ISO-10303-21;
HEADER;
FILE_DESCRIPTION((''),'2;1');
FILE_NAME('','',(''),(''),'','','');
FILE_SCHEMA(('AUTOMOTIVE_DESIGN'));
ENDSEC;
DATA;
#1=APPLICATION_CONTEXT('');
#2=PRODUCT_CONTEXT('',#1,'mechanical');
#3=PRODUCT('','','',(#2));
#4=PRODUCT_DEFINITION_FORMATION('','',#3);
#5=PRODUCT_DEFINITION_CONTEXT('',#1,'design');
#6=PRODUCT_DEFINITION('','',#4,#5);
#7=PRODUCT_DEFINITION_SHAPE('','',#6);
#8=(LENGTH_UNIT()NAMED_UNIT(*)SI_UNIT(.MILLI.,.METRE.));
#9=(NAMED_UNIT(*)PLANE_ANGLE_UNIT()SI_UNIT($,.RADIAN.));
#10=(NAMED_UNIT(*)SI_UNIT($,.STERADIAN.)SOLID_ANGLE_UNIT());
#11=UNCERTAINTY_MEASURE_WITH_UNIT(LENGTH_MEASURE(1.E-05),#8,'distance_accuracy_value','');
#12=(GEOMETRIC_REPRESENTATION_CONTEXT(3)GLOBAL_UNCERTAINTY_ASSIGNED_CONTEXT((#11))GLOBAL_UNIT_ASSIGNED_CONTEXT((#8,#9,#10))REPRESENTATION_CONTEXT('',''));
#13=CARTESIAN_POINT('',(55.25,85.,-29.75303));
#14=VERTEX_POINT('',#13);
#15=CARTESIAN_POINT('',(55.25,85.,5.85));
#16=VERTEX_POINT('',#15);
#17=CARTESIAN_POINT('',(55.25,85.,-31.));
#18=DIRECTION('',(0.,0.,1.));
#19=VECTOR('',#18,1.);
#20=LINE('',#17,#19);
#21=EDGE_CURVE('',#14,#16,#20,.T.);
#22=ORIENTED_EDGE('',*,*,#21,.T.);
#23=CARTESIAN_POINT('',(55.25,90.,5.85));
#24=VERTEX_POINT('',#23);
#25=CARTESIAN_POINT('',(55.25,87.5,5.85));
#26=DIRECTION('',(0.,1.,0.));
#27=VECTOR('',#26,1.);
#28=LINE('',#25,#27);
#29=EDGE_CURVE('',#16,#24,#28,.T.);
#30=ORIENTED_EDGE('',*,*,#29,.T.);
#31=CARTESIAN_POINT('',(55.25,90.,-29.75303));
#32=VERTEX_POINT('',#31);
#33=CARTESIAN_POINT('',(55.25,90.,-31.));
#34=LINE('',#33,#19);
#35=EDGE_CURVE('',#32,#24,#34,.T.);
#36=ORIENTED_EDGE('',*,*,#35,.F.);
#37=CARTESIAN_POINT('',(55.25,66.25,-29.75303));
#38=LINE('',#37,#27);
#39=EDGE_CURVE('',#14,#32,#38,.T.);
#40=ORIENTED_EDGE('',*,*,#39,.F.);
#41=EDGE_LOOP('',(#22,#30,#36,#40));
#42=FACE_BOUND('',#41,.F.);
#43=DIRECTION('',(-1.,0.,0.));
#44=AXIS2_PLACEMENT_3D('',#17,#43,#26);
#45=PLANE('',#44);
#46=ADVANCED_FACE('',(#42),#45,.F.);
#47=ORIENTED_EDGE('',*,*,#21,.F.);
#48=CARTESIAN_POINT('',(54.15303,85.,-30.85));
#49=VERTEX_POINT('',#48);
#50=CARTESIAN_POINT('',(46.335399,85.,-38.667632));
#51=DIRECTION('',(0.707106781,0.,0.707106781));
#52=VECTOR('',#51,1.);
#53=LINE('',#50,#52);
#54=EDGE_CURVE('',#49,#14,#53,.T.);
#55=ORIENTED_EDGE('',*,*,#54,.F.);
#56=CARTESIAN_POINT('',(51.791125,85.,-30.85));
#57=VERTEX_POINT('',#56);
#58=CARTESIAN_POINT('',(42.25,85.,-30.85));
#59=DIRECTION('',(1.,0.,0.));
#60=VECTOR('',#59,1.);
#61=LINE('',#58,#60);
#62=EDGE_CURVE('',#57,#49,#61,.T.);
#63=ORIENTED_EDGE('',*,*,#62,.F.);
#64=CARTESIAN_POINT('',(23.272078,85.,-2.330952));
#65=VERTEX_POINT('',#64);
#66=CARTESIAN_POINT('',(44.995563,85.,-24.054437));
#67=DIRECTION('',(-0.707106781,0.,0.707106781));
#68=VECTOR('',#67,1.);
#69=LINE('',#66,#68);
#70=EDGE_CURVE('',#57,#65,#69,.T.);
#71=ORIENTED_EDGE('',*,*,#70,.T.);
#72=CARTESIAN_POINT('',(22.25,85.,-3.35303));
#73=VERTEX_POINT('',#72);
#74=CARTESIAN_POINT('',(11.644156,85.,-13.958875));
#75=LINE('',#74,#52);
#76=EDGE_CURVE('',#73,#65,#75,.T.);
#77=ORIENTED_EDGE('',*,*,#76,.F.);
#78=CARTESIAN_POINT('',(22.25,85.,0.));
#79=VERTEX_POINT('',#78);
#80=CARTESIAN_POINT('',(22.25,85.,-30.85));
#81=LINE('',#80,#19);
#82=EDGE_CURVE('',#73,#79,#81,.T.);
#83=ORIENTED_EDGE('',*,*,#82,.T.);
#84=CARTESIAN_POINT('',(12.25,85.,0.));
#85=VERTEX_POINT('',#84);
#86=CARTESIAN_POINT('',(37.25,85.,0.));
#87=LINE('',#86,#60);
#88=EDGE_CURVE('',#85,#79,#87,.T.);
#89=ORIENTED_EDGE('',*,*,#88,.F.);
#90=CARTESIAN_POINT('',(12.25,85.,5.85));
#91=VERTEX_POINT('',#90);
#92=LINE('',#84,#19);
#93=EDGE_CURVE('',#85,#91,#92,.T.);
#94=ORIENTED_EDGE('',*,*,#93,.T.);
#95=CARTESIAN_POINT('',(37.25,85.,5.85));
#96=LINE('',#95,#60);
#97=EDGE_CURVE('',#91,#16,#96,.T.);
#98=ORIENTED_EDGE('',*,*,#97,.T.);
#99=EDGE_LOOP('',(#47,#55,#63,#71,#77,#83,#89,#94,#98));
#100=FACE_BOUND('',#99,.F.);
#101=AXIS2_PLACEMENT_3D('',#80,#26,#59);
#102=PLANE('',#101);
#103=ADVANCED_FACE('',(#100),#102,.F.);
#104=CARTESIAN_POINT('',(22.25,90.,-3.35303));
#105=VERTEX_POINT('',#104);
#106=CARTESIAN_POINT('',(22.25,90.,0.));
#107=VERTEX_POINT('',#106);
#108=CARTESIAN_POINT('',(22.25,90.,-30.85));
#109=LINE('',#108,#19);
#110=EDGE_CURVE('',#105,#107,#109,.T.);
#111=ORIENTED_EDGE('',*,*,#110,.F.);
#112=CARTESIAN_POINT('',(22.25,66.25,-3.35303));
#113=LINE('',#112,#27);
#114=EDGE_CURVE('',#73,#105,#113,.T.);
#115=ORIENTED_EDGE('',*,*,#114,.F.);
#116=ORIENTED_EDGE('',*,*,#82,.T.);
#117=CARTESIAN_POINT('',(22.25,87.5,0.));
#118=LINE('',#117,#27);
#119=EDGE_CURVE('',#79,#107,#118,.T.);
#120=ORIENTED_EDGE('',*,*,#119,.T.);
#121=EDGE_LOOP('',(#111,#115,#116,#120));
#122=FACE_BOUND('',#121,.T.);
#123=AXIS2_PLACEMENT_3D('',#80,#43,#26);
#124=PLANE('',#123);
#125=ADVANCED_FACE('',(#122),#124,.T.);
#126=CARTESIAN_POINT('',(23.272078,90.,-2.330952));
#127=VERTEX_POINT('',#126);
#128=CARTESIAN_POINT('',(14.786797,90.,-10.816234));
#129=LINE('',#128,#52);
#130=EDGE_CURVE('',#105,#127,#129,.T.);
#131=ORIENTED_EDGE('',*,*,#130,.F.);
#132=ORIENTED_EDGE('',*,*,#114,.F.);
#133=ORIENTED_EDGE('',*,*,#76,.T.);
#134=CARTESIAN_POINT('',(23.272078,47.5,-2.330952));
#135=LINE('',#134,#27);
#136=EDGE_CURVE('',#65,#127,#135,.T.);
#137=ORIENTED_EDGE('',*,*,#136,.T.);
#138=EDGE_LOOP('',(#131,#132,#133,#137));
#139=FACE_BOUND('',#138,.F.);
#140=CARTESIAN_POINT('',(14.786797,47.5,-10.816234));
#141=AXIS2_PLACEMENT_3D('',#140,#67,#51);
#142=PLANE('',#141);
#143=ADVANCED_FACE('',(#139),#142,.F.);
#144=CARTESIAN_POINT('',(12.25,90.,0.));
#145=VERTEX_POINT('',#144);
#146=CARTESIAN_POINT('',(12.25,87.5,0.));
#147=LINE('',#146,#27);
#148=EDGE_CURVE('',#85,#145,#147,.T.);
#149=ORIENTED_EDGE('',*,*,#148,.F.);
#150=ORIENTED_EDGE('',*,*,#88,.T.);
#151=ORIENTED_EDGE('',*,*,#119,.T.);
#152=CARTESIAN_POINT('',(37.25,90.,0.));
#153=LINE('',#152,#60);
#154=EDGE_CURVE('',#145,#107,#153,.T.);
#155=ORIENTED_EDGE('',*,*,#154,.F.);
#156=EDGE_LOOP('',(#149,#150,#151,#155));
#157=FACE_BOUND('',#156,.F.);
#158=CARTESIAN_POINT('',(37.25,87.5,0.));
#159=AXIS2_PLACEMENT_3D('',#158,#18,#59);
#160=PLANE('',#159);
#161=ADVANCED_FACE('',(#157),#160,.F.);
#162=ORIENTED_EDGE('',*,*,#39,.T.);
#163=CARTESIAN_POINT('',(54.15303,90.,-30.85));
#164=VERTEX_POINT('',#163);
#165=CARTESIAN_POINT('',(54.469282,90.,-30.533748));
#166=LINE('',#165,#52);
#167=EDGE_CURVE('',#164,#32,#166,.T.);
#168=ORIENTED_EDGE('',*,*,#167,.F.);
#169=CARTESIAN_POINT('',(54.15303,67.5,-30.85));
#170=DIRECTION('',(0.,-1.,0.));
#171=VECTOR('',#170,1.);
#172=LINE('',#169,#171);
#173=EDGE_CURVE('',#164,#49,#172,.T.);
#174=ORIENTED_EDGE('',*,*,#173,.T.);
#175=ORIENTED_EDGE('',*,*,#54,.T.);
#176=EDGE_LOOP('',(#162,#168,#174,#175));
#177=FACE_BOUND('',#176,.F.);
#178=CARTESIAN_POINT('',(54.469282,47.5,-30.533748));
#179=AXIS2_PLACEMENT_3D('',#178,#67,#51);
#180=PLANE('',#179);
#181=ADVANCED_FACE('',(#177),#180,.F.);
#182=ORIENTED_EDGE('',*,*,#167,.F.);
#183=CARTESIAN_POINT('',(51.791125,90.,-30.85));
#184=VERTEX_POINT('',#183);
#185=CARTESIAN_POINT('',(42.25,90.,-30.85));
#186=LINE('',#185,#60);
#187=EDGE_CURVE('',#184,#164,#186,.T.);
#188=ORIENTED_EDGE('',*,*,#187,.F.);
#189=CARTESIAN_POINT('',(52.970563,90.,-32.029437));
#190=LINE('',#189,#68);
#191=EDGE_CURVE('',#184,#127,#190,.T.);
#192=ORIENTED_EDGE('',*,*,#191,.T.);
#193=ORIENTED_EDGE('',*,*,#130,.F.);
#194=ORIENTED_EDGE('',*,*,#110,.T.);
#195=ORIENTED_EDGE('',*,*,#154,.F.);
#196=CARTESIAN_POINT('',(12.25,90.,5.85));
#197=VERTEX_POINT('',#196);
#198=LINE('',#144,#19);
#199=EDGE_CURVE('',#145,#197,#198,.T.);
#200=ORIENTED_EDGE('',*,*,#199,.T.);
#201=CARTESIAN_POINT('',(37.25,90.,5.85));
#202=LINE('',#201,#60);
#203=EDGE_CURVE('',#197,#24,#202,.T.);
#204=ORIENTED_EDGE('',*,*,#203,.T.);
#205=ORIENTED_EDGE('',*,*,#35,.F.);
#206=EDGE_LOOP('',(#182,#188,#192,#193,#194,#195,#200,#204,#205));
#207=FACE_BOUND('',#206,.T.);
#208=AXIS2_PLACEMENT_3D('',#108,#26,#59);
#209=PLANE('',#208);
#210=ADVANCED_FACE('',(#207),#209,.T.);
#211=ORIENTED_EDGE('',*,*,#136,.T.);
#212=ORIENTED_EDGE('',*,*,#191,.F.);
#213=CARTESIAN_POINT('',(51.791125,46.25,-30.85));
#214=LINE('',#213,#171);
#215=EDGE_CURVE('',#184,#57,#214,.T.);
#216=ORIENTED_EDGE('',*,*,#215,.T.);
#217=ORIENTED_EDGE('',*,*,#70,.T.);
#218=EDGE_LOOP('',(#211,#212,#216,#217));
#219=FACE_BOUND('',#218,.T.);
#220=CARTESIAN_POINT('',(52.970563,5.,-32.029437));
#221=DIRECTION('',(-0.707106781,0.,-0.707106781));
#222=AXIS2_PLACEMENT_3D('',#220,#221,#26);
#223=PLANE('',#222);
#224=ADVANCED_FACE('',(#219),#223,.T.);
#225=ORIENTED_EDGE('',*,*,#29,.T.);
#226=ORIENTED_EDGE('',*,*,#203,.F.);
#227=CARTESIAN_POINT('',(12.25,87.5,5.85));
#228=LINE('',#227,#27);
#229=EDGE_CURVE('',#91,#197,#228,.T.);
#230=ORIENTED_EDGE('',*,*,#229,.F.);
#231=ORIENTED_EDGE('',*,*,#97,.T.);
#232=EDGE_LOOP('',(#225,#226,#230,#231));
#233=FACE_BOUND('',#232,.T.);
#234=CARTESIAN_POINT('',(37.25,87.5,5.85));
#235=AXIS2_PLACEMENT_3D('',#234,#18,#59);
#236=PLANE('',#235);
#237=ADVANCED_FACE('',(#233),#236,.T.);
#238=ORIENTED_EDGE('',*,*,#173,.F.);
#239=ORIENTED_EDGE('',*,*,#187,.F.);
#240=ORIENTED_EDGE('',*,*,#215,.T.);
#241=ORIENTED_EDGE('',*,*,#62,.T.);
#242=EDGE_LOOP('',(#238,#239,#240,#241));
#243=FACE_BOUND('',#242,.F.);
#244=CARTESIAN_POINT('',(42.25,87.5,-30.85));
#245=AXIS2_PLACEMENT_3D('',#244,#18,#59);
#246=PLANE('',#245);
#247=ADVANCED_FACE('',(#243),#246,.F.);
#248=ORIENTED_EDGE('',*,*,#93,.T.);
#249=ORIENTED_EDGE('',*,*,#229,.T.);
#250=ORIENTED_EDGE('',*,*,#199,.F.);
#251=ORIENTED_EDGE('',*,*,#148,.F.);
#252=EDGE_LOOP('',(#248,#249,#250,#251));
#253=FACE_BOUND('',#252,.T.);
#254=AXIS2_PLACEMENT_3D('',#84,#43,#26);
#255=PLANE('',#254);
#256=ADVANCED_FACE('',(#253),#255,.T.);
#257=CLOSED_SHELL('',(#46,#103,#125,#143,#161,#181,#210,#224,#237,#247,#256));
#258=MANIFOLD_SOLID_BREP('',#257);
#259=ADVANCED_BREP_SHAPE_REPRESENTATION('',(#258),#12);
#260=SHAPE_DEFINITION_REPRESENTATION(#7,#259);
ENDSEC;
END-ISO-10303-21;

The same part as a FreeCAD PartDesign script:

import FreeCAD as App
import Part
import Sketcher
from FreeCAD import Vector


def add_polygon(sketch, points):
    """Adds a closed chain of lines whose ends are joined by coincident constraints."""
    first, n = sketch.GeometryCount, len(points)
    for a, b in zip(points, points[1:] + points[:1]):
        sketch.addGeometry(Part.LineSegment(App.Vector(*a, 0), App.Vector(*b, 0)), False)
    for i in range(n):
        sketch.addConstraint(Sketcher.Constraint("Coincident", first + i, 2, first + (i + 1) % n, 1))

doc = App.newDocument("Part")
body = doc.addObject("PartDesign::Body", "Body")

sketch1 = body.newObject("Sketcher::SketchObject", "Sketch")
sketch1.AttachmentSupport = (doc.getObject("XY_Plane"), [""])
sketch1.MapMode = "FlatFace"
add_polygon(sketch1, [(0, 85), (0, 0), (5, 0), (5, 85)])
sketch1.addConstraint(Sketcher.Constraint("Vertical", 0))
sketch1.addConstraint(Sketcher.Constraint("Horizontal", 1))
sketch1.addConstraint(Sketcher.Constraint("Vertical", 2))
sketch1.addConstraint(Sketcher.Constraint("Horizontal", 3))
sketch1.addConstraint(Sketcher.Constraint("Coincident", 0, 2, -1, 1))
sketch1.addConstraint(Sketcher.Constraint("DistanceX", 1, 1, 1, 2, 5.0))
sketch1.addConstraint(Sketcher.Constraint("DistanceY", 0, 2, 0, 1, 85.0))
pad1 = body.newObject("PartDesign::Pad", "Pad")
pad1.Profile = sketch1
pad1.Length = 42
body2 = doc.addObject("PartDesign::Body", "Body001")
doc.recompute()

body.Placement = App.Placement(Vector(82.4, 5, -62), App.Rotation(Vector(0, 1, 0), 315))
boolean = body2.newObject("PartDesign::Boolean", "Boolean")
boolean.Type = "Fuse"
boolean.addObjects([body])
body3 = doc.addObject("PartDesign::Body", "Body002")

sketch2 = body3.newObject("Sketcher::SketchObject", "Sketch001")
sketch2.AttachmentSupport = (doc.getObject("XY_Plane002"), [""])
sketch2.MapMode = "FlatFace"
sketch2.AttachmentOffset = App.Placement(Vector(0, 0, -31), App.Rotation())
add_polygon(sketch2, [(55.25, 90), (55.25, 85), (62.25, 85), (62.25, 90)])
sketch2.addConstraint(Sketcher.Constraint("Vertical", 0))
sketch2.addConstraint(Sketcher.Constraint("Horizontal", 1))
sketch2.addConstraint(Sketcher.Constraint("Vertical", 2))
sketch2.addConstraint(Sketcher.Constraint("Horizontal", 3))
sketch2.addConstraint(Sketcher.Constraint("DistanceX", 1, 1, 1, 2, 7.0))
sketch2.addConstraint(Sketcher.Constraint("DistanceY", 0, 2, 0, 1, 5.0))
sketch2.addConstraint(Sketcher.Constraint("DistanceY", -1, 1, 0, 2, 85.0))
sketch2.addConstraint(Sketcher.Constraint("DistanceX", -1, 1, 0, 2, 55.25))
pad2 = body3.newObject("PartDesign::Pad", "Pad001")
pad2.Profile = sketch2
pad2.Length = 36.85
body4 = doc.addObject("PartDesign::Body", "Body003")

sketch3 = body4.newObject("Sketcher::SketchObject", "Sketch002")
sketch3.AttachmentSupport = (doc.getObject("XY_Plane003"), [""])
sketch3.MapMode = "FlatFace"
add_polygon(sketch3, [(0, 85), (0, 0), (24, 0), (24, 85)])
sketch3.addConstraint(Sketcher.Constraint("Vertical", 0))
sketch3.addConstraint(Sketcher.Constraint("Horizontal", 1))
sketch3.addConstraint(Sketcher.Constraint("Vertical", 2))
sketch3.addConstraint(Sketcher.Constraint("Horizontal", 3))
sketch3.addConstraint(Sketcher.Constraint("Coincident", 0, 2, -1, 1))
sketch3.addConstraint(Sketcher.Constraint("DistanceX", 1, 1, 1, 2, 24.0))
sketch3.addConstraint(Sketcher.Constraint("DistanceY", 0, 2, 0, 1, 85.0))
pad3 = body4.newObject("PartDesign::Pad", "Pad002")
pad3.Profile = sketch3
pad3.Length = 42
body5 = doc.addObject("PartDesign::Body", "Body004")
doc.recompute()

body4.Placement = App.Placement(Vector(36, 5, -49), App.Rotation(Vector(0, 1, 0), 315))
boolean2 = body5.newObject("PartDesign::Boolean", "Boolean001")
boolean2.Type = "Fuse"
boolean2.addObjects([body4])
body6 = doc.addObject("PartDesign::Body", "Body005")

sketch4 = body6.newObject("Sketcher::SketchObject", "Sketch003")
sketch4.AttachmentSupport = (doc.getObject("XY_Plane005"), [""])
sketch4.MapMode = "FlatFace"
sketch4.AttachmentOffset = App.Placement(Vector(0, 0, -30.85), App.Rotation())
add_polygon(sketch4, [(22.25, 90), (22.25, 85), (62.25, 85), (62.25, 90)])
sketch4.addConstraint(Sketcher.Constraint("Vertical", 0))
sketch4.addConstraint(Sketcher.Constraint("Horizontal", 1))
sketch4.addConstraint(Sketcher.Constraint("Vertical", 2))
sketch4.addConstraint(Sketcher.Constraint("Horizontal", 3))
sketch4.addConstraint(Sketcher.Constraint("DistanceX", 1, 1, 1, 2, 40.0))
sketch4.addConstraint(Sketcher.Constraint("DistanceY", 0, 2, 0, 1, 5.0))
sketch4.addConstraint(Sketcher.Constraint("DistanceY", -1, 1, 0, 2, 85.0))
sketch4.addConstraint(Sketcher.Constraint("DistanceX", -1, 1, 0, 2, 22.25))
pad4 = body6.newObject("PartDesign::Pad", "Pad003")
pad4.Profile = sketch4
pad4.Length = 30.85
doc.recompute()

boolean3 = body6.newObject("PartDesign::Boolean", "Boolean002")
boolean3.Type = "Cut"
boolean3.addObjects([body5])
body7 = doc.addObject("PartDesign::Body", "Body006")

sketch5 = body7.newObject("Sketcher::SketchObject", "Sketch004")
sketch5.AttachmentSupport = (doc.getObject("XY_Plane006"), [""])
sketch5.MapMode = "FlatFace"
add_polygon(sketch5, [(12.25, 90), (12.25, 85), (62.25, 85), (62.25, 90)])
sketch5.addConstraint(Sketcher.Constraint("Vertical", 0))
sketch5.addConstraint(Sketcher.Constraint("Horizontal", 1))
sketch5.addConstraint(Sketcher.Constraint("Vertical", 2))
sketch5.addConstraint(Sketcher.Constraint("Horizontal", 3))
sketch5.addConstraint(Sketcher.Constraint("DistanceX", 1, 1, 1, 2, 50.0))
sketch5.addConstraint(Sketcher.Constraint("DistanceY", 0, 2, 0, 1, 5.0))
sketch5.addConstraint(Sketcher.Constraint("DistanceY", -1, 1, 0, 2, 85.0))
sketch5.addConstraint(Sketcher.Constraint("DistanceX", -1, 1, 0, 2, 12.25))
pad5 = body7.newObject("PartDesign::Pad", "Pad004")
pad5.Profile = sketch5
pad5.Length = 5.85
doc.recompute()

boolean4 = body7.newObject("PartDesign::Boolean", "Boolean003")
boolean4.Type = "Fuse"
boolean4.addObjects([body6])
doc.recompute()

boolean5 = body7.newObject("PartDesign::Boolean", "Boolean004")
boolean5.Type = "Cut"
boolean5.addObjects([body3])
doc.recompute()

boolean6 = body7.newObject("PartDesign::Boolean", "Boolean005")
boolean6.Type = "Cut"
boolean6.addObjects([body2])

doc.recompute()
